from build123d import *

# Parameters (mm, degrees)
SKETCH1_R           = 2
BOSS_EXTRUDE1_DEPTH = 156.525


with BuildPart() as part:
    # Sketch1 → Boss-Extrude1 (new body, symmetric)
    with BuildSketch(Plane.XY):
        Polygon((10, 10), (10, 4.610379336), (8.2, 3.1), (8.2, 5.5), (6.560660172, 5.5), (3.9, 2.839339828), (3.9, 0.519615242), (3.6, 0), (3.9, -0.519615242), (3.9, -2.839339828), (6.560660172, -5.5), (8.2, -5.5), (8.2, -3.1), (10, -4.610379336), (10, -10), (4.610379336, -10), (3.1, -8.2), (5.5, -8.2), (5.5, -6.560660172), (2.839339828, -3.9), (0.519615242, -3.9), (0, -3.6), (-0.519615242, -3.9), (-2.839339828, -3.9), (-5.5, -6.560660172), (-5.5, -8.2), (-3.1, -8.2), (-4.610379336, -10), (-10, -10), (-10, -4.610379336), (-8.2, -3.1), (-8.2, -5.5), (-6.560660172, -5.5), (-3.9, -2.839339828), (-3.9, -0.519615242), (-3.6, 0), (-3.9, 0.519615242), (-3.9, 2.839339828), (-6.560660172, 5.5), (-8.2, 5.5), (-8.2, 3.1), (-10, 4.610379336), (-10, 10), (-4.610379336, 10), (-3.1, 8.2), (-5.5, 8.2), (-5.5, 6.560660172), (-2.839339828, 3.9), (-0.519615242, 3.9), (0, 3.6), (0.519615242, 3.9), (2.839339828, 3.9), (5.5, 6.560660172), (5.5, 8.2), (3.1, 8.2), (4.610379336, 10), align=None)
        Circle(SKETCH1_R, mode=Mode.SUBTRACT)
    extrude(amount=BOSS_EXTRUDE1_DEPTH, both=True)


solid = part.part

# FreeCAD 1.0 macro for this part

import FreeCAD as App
import Part
import Sketcher

V = App.Vector
Q = App.Units.Quantity

doc = App.newDocument("Part")
body = doc.addObject("PartDesign::Body", "Body")

# Sketch on XY plane
sketch1 = doc.addObject("Sketcher::SketchObject", "Sketch")
body.addObject(sketch1)
sketch1.AttachmentSupport = (doc.XY_Plane, [""])
sketch1.MapMode = "FlatFace"
sketch1.addGeometry([
    Part.LineSegment(V(10, 4.6, 0), V(10, 10, 0)),  # 0
    Part.LineSegment(V(10, 10, 0), V(4.6, 10, 0)),  # 1
    Part.LineSegment(V(4.6, 10, 0), V(3.1, 8.2, 0)),  # 2
    Part.LineSegment(V(3.1, 8.2, 0), V(5.5, 8.2, 0)),  # 3
    Part.LineSegment(V(5.5, 8.2, 0), V(5.5, 6.6, 0)),  # 4
    Part.LineSegment(V(5.5, 6.6, 0), V(2.8, 3.9, 0)),  # 5
    Part.LineSegment(V(2.8, 3.9, 0), V(0.5, 3.9, 0)),  # 6
    Part.LineSegment(V(0.5, 3.9, 0), V(0, 3.6, 0)),  # 7
    Part.LineSegment(V(0, 3.6, 0), V(-0.5, 3.9, 0)),  # 8
    Part.LineSegment(V(-0.5, 3.9, 0), V(-2.8, 3.9, 0)),  # 9
    Part.LineSegment(V(-2.8, 3.9, 0), V(-5.5, 6.6, 0)),  # 10
    Part.LineSegment(V(-5.5, 6.6, 0), V(-5.5, 8.2, 0)),  # 11
    Part.LineSegment(V(-5.5, 8.2, 0), V(-3.1, 8.2, 0)),  # 12
    Part.LineSegment(V(-3.1, 8.2, 0), V(-4.6, 10, 0)),  # 13
    Part.LineSegment(V(-4.6, 10, 0), V(-10, 10, 0)),  # 14
    Part.LineSegment(V(-10, 10, 0), V(-10, 4.6, 0)),  # 15
    Part.LineSegment(V(-10, 4.6, 0), V(-8.2, 3.1, 0)),  # 16
    Part.LineSegment(V(-8.2, 3.1, 0), V(-8.2, 5.5, 0)),  # 17
    Part.LineSegment(V(-8.2, 5.5, 0), V(-6.6, 5.5, 0)),  # 18
    Part.LineSegment(V(-6.6, 5.5, 0), V(-3.9, 2.8, 0)),  # 19
    Part.LineSegment(V(-3.9, 2.8, 0), V(-3.9, 0.5, 0)),  # 20
    Part.LineSegment(V(-3.9, 0.5, 0), V(-3.6, 0, 0)),  # 21
    Part.LineSegment(V(-3.6, 0, 0), V(-3.9, -0.5, 0)),  # 22
    Part.LineSegment(V(-3.9, -0.5, 0), V(-3.9, -2.8, 0)),  # 23
    Part.LineSegment(V(-3.9, -2.8, 0), V(-6.6, -5.5, 0)),  # 24
    Part.LineSegment(V(-6.6, -5.5, 0), V(-8.2, -5.5, 0)),  # 25
    Part.LineSegment(V(-8.2, -5.5, 0), V(-8.2, -3.1, 0)),  # 26
    Part.LineSegment(V(-8.2, -3.1, 0), V(-10, -4.6, 0)),  # 27
    Part.LineSegment(V(-10, -4.6, 0), V(-10, -10, 0)),  # 28
    Part.LineSegment(V(-10, -10, 0), V(-4.6, -10, 0)),  # 29
    Part.LineSegment(V(-4.6, -10, 0), V(-3.1, -8.2, 0)),  # 30
    Part.LineSegment(V(-3.1, -8.2, 0), V(-5.5, -8.2, 0)),  # 31
    Part.LineSegment(V(-5.5, -8.2, 0), V(-5.5, -6.6, 0)),  # 32
    Part.LineSegment(V(-5.5, -6.6, 0), V(-2.8, -3.9, 0)),  # 33
    Part.LineSegment(V(-2.8, -3.9, 0), V(-0.5, -3.9, 0)),  # 34
    Part.LineSegment(V(-0.5, -3.9, 0), V(0, -3.6, 0)),  # 35
    Part.LineSegment(V(0, -3.6, 0), V(0.5, -3.9, 0)),  # 36
    Part.LineSegment(V(0.5, -3.9, 0), V(2.8, -3.9, 0)),  # 37
    Part.LineSegment(V(2.8, -3.9, 0), V(5.5, -6.6, 0)),  # 38
    Part.LineSegment(V(5.5, -6.6, 0), V(5.5, -8.2, 0)),  # 39
    Part.LineSegment(V(5.5, -8.2, 0), V(3.1, -8.2, 0)),  # 40
    Part.LineSegment(V(3.1, -8.2, 0), V(4.6, -10, 0)),  # 41
    Part.LineSegment(V(4.6, -10, 0), V(10, -10, 0)),  # 42
    Part.LineSegment(V(10, -10, 0), V(10, -4.6, 0)),  # 43
    Part.LineSegment(V(10, -4.6, 0), V(8.2, -3.1, 0)),  # 44
    Part.LineSegment(V(8.2, -3.1, 0), V(8.2, -5.5, 0)),  # 45
    Part.LineSegment(V(8.2, -5.5, 0), V(6.6, -5.5, 0)),  # 46
    Part.LineSegment(V(6.6, -5.5, 0), V(3.9, -2.8, 0)),  # 47
    Part.LineSegment(V(3.9, -2.8, 0), V(3.9, -0.5, 0)),  # 48
    Part.LineSegment(V(3.9, -0.5, 0), V(3.6, 0, 0)),  # 49
    Part.LineSegment(V(3.6, 0, 0), V(3.9, 0.5, 0)),  # 50
    Part.LineSegment(V(3.9, 0.5, 0), V(3.9, 2.8, 0)),  # 51
    Part.LineSegment(V(3.9, 2.8, 0), V(6.6, 5.5, 0)),  # 52
    Part.LineSegment(V(6.6, 5.5, 0), V(8.2, 5.5, 0)),  # 53
    Part.LineSegment(V(8.2, 5.5, 0), V(8.2, 3.1, 0)),  # 54
    Part.LineSegment(V(8.2, 3.1, 0), V(10, 4.6, 0)),  # 55
    Part.Circle(V(0, 0, 0), V(0, 0, 1), 2),  # 56
], False)
sketch1.addConstraint([
    Sketcher.Constraint("Coincident", 0, 2, 1, 1),
    Sketcher.Constraint("Coincident", 1, 2, 2, 1),
    Sketcher.Constraint("Coincident", 2, 2, 3, 1),
    Sketcher.Constraint("Coincident", 3, 2, 4, 1),
    Sketcher.Constraint("Coincident", 4, 2, 5, 1),
    Sketcher.Constraint("Coincident", 5, 2, 6, 1),
    Sketcher.Constraint("Coincident", 6, 2, 7, 1),
    Sketcher.Constraint("Coincident", 7, 2, 8, 1),
    Sketcher.Constraint("Coincident", 8, 2, 9, 1),
    Sketcher.Constraint("Coincident", 9, 2, 10, 1),
    Sketcher.Constraint("Coincident", 10, 2, 11, 1),
    Sketcher.Constraint("Coincident", 11, 2, 12, 1),
    Sketcher.Constraint("Coincident", 12, 2, 13, 1),
    Sketcher.Constraint("Coincident", 13, 2, 14, 1),
    Sketcher.Constraint("Coincident", 14, 2, 15, 1),
    Sketcher.Constraint("Coincident", 15, 2, 16, 1),
    Sketcher.Constraint("Coincident", 16, 2, 17, 1),
    Sketcher.Constraint("Coincident", 17, 2, 18, 1),
    Sketcher.Constraint("Coincident", 18, 2, 19, 1),
    Sketcher.Constraint("Coincident", 19, 2, 20, 1),
    Sketcher.Constraint("Coincident", 20, 2, 21, 1),
    Sketcher.Constraint("Coincident", 21, 2, 22, 1),
    Sketcher.Constraint("Coincident", 22, 2, 23, 1),
    Sketcher.Constraint("Coincident", 23, 2, 24, 1),
    Sketcher.Constraint("Coincident", 24, 2, 25, 1),
    Sketcher.Constraint("Coincident", 25, 2, 26, 1),
    Sketcher.Constraint("Coincident", 26, 2, 27, 1),
    Sketcher.Constraint("Coincident", 27, 2, 28, 1),
    Sketcher.Constraint("Coincident", 28, 2, 29, 1),
    Sketcher.Constraint("Coincident", 29, 2, 30, 1),
    Sketcher.Constraint("Coincident", 30, 2, 31, 1),
    Sketcher.Constraint("Coincident", 31, 2, 32, 1),
    Sketcher.Constraint("Coincident", 32, 2, 33, 1),
    Sketcher.Constraint("Coincident", 33, 2, 34, 1),
    Sketcher.Constraint("Coincident", 34, 2, 35, 1),
    Sketcher.Constraint("Coincident", 35, 2, 36, 1),
    Sketcher.Constraint("Coincident", 36, 2, 37, 1),
    Sketcher.Constraint("Coincident", 37, 2, 38, 1),
    Sketcher.Constraint("Coincident", 38, 2, 39, 1),
    Sketcher.Constraint("Coincident", 39, 2, 40, 1),
    Sketcher.Constraint("Coincident", 40, 2, 41, 1),
    Sketcher.Constraint("Coincident", 41, 2, 42, 1),
    Sketcher.Constraint("Coincident", 42, 2, 43, 1),
    Sketcher.Constraint("Coincident", 43, 2, 44, 1),
    Sketcher.Constraint("Coincident", 44, 2, 45, 1),
    Sketcher.Constraint("Coincident", 45, 2, 46, 1),
    Sketcher.Constraint("Coincident", 46, 2, 47, 1),
    Sketcher.Constraint("Coincident", 47, 2, 48, 1),
    Sketcher.Constraint("Coincident", 48, 2, 49, 1),
    Sketcher.Constraint("Coincident", 49, 2, 50, 1),
    Sketcher.Constraint("Coincident", 50, 2, 51, 1),
    Sketcher.Constraint("Coincident", 51, 2, 52, 1),
    Sketcher.Constraint("Coincident", 52, 2, 53, 1),
    Sketcher.Constraint("Coincident", 53, 2, 54, 1),
    Sketcher.Constraint("Coincident", 54, 2, 55, 1),
    Sketcher.Constraint("Coincident", 55, 2, 0, 1),
    Sketcher.Constraint("Vertical", 0),
    Sketcher.Constraint("Horizontal", 1),
    Sketcher.Constraint("Horizontal", 3),
    Sketcher.Constraint("Vertical", 4),
    Sketcher.Constraint("Horizontal", 6),
    Sketcher.Constraint("Horizontal", 9),
    Sketcher.Constraint("Vertical", 11),
    Sketcher.Constraint("Horizontal", 12),
    Sketcher.Constraint("Horizontal", 14),
    Sketcher.Constraint("Vertical", 15),
    Sketcher.Constraint("Vertical", 17),
    Sketcher.Constraint("Horizontal", 18),
    Sketcher.Constraint("Vertical", 20),
    Sketcher.Constraint("Vertical", 23),
    Sketcher.Constraint("Horizontal", 25),
    Sketcher.Constraint("Vertical", 26),
    Sketcher.Constraint("Vertical", 28),
    Sketcher.Constraint("Horizontal", 29),
    Sketcher.Constraint("Horizontal", 31),
    Sketcher.Constraint("Vertical", 32),
    Sketcher.Constraint("Horizontal", 34),
    Sketcher.Constraint("Horizontal", 37),
    Sketcher.Constraint("Vertical", 39),
    Sketcher.Constraint("Horizontal", 40),
    Sketcher.Constraint("Horizontal", 42),
    Sketcher.Constraint("Vertical", 43),
    Sketcher.Constraint("Vertical", 45),
    Sketcher.Constraint("Horizontal", 46),
    Sketcher.Constraint("Vertical", 48),
    Sketcher.Constraint("Vertical", 51),
    Sketcher.Constraint("Horizontal", 53),
    Sketcher.Constraint("Vertical", 54),
    Sketcher.Constraint("Coincident", 56, 3, -1, 1),
    Sketcher.Constraint("Symmetric", 0, 2, 28, 2, -1, 1),
    Sketcher.Constraint("Symmetric", 2, 2, 30, 2, -1, 1),
    Sketcher.Constraint("Symmetric", 4, 2, 32, 2, -1, 1),
    Sketcher.Constraint("Symmetric", 5, 2, 33, 2, -1, 1),
    Sketcher.Constraint("Symmetric", 7, 2, 35, 2, -1, 1),
    Sketcher.Constraint("Symmetric", 8, 2, 36, 2, -1, 1),
    Sketcher.Constraint("Symmetric", 10, 2, 38, 2, -1, 1),
    Sketcher.Constraint("Symmetric", 12, 2, 40, 2, -1, 1),
    Sketcher.Constraint("Symmetric", 13, 2, 41, 2, -1, 1),
    Sketcher.Constraint("Symmetric", 15, 2, 43, 2, -1, 1),
    Sketcher.Constraint("Symmetric", 16, 2, 44, 2, -1, 1),
    Sketcher.Constraint("Symmetric", 18, 2, 46, 2, -1, 1),
    Sketcher.Constraint("Symmetric", 19, 2, 47, 2, -1, 1),
    Sketcher.Constraint("Symmetric", 21, 2, 49, 2, -1, 1),
    Sketcher.Constraint("Symmetric", 22, 2, 50, 2, -1, 1),
    Sketcher.Constraint("Symmetric", 24, 2, 52, 2, -1, 1),
    Sketcher.Constraint("Symmetric", 26, 2, 54, 2, -1, 1),
    Sketcher.Constraint("Symmetric", 6, 2, 8, 2, -2),
    Sketcher.Constraint("Symmetric", 4, 2, 10, 2, -2),
    Sketcher.Constraint("Symmetric", 2, 2, 12, 2, -2),
    Sketcher.Constraint("Symmetric", 1, 2, 13, 2, -2),
    Sketcher.Constraint("Symmetric", 27, 2, 43, 2, -2),
    Sketcher.Constraint("Symmetric", 26, 2, 44, 2, -2),
    Sketcher.Constraint("Symmetric", 24, 2, 46, 2, -2),
    Sketcher.Constraint("Symmetric", 23, 2, 47, 2, -2),
    Sketcher.Constraint("PointOnObject", 7, 2, -2),
    Sketcher.Constraint("PointOnObject", 21, 2, -1),
    Sketcher.Constraint("Perpendicular", 5, 10),
    Sketcher.Constraint("Perpendicular", 2, 16),
    Sketcher.Constraint("Parallel", 10, 19),
    Sketcher.Constraint("Perpendicular", 7, 21),
    Sketcher.Constraint("Perpendicular", 8, 22),
    Sketcher.Constraint("Perpendicular", 19, 24),
    Sketcher.Constraint("Perpendicular", 16, 30),
    Sketcher.Constraint("Perpendicular", 21, 35),
    Sketcher.Constraint("Perpendicular", 33, 38),
    Sketcher.Constraint("Perpendicular", 35, 49),
    Sketcher.Constraint("Perpendicular", 47, 52),
    Sketcher.Constraint("Perpendicular", 41, 55),
    Sketcher.Constraint("Equal", 42, 0),
    Sketcher.Constraint("Equal", 53, 4),
    Sketcher.Constraint("Equal", 40, 17),
    Sketcher.Constraint("Equal", 37, 20),
    Sketcher.Constraint("Equal", 13, 16),
    Sketcher.Constraint("Equal", 10, 19),
    Sketcher.Constraint("Equal", 8, 21),
    Sketcher.Constraint("Diameter", 56, Q("4 mm")),
    Sketcher.Constraint("Angle", 2, Q("-130 deg")),
    Sketcher.Constraint("Angle", 7, Q("-150 deg")),
    Sketcher.Constraint("DistanceX", 3, 1, 3, 2, Q("2.4 mm")),
    Sketcher.Constraint("DistanceX", -1, 1, 0, 2, Q("10 mm")),
    Sketcher.Constraint("Distance", 7, Q("0.6 mm")),
    Sketcher.Constraint("DistanceX", -1, 1, 2, 2, Q("3.1 mm")),
    Sketcher.Constraint("DistanceY", -1, 1, 2, 2, Q("8.2 mm")),
    Sketcher.Constraint("DistanceY", -1, 1, 5, 2, Q("3.9 mm")),
    Sketcher.Constraint("DistanceX", 18, 1, 18, 2, Q("1.63934 mm")),
])
pad1 = doc.addObject("PartDesign::Pad", "Pad")
body.addObject(pad1)
pad1.Profile = sketch1
pad1.Length = 313.05
pad1.Midplane = True

doc.recompute()
